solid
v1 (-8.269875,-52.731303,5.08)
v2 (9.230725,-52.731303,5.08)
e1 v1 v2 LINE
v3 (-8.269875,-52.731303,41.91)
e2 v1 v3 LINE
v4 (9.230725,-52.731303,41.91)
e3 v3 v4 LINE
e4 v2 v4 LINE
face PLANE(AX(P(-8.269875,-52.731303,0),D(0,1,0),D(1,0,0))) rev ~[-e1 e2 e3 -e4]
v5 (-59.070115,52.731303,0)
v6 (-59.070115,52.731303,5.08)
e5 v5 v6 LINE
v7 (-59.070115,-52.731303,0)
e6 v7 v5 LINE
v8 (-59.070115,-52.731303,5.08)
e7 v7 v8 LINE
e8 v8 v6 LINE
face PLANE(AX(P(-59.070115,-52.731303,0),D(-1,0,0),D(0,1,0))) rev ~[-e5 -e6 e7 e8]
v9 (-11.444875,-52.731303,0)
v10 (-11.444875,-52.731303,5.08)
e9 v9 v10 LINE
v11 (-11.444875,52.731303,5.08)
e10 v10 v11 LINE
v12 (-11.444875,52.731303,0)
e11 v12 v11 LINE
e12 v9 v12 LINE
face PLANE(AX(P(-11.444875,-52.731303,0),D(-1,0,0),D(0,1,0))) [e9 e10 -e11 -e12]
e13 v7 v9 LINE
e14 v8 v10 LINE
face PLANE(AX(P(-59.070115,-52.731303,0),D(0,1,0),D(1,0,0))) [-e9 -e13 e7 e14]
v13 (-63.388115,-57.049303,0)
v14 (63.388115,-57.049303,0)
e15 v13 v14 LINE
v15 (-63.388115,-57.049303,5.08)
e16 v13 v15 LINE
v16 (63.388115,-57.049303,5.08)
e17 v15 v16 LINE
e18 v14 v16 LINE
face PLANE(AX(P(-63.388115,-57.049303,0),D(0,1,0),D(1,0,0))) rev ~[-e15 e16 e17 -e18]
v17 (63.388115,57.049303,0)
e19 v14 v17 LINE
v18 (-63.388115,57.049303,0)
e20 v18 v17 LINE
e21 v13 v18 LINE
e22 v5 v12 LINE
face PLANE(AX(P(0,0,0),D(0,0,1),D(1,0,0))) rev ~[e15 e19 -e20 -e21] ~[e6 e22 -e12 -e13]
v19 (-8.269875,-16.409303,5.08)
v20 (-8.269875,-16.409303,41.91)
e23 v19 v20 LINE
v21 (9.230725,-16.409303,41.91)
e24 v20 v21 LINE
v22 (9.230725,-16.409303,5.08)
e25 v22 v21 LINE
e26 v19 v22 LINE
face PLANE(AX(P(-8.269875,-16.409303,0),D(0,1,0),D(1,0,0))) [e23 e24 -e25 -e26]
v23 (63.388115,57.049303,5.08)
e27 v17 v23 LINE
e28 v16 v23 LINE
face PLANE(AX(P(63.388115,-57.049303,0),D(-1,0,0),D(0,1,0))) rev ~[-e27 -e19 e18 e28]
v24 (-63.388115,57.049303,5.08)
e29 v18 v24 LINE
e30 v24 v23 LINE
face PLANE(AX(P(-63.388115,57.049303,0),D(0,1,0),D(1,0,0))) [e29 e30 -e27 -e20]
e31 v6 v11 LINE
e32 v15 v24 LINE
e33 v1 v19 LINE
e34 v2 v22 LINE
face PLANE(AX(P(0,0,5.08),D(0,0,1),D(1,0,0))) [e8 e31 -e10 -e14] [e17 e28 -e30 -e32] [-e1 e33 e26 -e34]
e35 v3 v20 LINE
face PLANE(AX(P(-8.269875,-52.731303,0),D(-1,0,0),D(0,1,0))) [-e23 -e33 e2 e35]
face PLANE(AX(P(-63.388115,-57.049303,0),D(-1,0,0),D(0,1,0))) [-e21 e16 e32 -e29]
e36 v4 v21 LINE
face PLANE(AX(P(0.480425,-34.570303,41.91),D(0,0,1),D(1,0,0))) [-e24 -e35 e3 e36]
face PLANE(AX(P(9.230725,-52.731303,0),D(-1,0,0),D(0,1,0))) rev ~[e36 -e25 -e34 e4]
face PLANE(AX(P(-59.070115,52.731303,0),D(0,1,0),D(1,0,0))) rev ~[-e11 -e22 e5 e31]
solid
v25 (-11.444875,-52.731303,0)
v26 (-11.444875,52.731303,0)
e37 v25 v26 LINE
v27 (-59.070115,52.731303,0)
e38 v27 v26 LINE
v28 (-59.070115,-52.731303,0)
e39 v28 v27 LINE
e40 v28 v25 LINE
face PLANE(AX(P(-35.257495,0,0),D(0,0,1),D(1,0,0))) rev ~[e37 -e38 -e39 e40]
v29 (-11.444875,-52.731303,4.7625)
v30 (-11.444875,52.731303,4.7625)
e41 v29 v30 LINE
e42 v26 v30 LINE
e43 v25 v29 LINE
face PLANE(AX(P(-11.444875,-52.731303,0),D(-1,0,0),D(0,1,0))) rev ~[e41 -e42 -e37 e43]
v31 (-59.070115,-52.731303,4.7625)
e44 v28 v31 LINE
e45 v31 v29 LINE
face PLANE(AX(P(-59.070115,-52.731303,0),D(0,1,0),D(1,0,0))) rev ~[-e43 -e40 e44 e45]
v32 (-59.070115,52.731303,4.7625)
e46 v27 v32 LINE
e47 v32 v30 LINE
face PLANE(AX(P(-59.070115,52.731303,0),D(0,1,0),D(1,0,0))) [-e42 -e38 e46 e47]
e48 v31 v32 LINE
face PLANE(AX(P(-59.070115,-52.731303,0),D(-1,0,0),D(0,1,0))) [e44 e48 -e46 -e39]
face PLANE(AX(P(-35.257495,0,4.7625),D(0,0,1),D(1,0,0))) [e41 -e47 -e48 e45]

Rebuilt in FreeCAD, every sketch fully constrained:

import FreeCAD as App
import Part
import Sketcher
from FreeCAD import Vector
Q = App.Units.Quantity

doc = App.newDocument("Part")
body = doc.addObject("PartDesign::Body", "Body")

# Sketch on XY plane
sketch1 = body.newObject("Sketcher::SketchObject", "Sketch")
sketch1.AttachmentSupport = (doc.getObject("XY_Plane"), [""])
sketch1.MapMode = "FlatFace"
sketch1.addGeometry([
    Part.LineSegment(Vector(-8, -16, 0), Vector(-8, -53, 0)),
    Part.LineSegment(Vector(-8, -53, 0), Vector(9, -53, 0)),
    Part.LineSegment(Vector(9, -53, 0), Vector(9, -16, 0)),
    Part.LineSegment(Vector(9, -16, 0), Vector(-8, -16, 0)),
], False)
sketch1.addConstraint([
    Sketcher.Constraint("Coincident", 0, 2, 1, 1),
    Sketcher.Constraint("Coincident", 1, 2, 2, 1),
    Sketcher.Constraint("Coincident", 2, 2, 3, 1),
    Sketcher.Constraint("Coincident", 3, 2, 0, 1),
    Sketcher.Constraint("Vertical", 0),
    Sketcher.Constraint("Horizontal", 1),
    Sketcher.Constraint("Vertical", 2),
    Sketcher.Constraint("Horizontal", 3),
    Sketcher.Constraint("DistanceY", 0, 2, 0, 1, Q("1.43 in")),
    Sketcher.Constraint("DistanceX", 1, 1, 1, 2, Q("0.689 in")),
    Sketcher.Constraint("DistanceX", 0, 2, -1, 1, Q("8.269875 mm")),
    Sketcher.Constraint("DistanceY", 0, 2, -1, 1, Q("52.731303 mm")),
])
pad1 = body.newObject("PartDesign::Pad", "Pad")
pad1.Profile = sketch1
pad1.Length = Q("1.65 in")

# Sketch on XY plane
sketch2 = body.newObject("Sketcher::SketchObject", "Sketch001")
sketch2.AttachmentSupport = (doc.getObject("XY_Plane"), [""])
sketch2.MapMode = "FlatFace"
sketch2.addGeometry([
    Part.LineSegment(Vector(-63, 57, 0), Vector(-63, -57, 0)),  # 0
    Part.LineSegment(Vector(-63, -57, 0), Vector(63, -57, 0)),  # 1
    Part.LineSegment(Vector(63, -57, 0), Vector(63, 57, 0)),  # 2
    Part.LineSegment(Vector(63, 57, 0), Vector(-63, 57, 0)),  # 3
    Part.LineSegment(Vector(9, -53, 0), Vector(-8, -53, 0)),  # 4
    Part.LineSegment(Vector(-8, -53, 0), Vector(-8, -16, 0)),  # 5
    Part.LineSegment(Vector(-8, -16, 0), Vector(9, -16, 0)),  # 6
    Part.LineSegment(Vector(9, -16, 0), Vector(9, -53, 0)),  # 7
    Part.LineSegment(Vector(-11, -53, 0), Vector(-59, -53, 0)),  # 8
    Part.LineSegment(Vector(-59, -53, 0), Vector(-59, 53, 0)),  # 9
    Part.LineSegment(Vector(-59, 53, 0), Vector(-11, 53, 0)),  # 10
    Part.LineSegment(Vector(-11, 53, 0), Vector(-11, -53, 0)),  # 11
], False)
sketch2.addConstraint([
    Sketcher.Constraint("Coincident", 0, 2, 1, 1),
    Sketcher.Constraint("Coincident", 1, 2, 2, 1),
    Sketcher.Constraint("Coincident", 2, 2, 3, 1),
    Sketcher.Constraint("Coincident", 3, 2, 0, 1),
    Sketcher.Constraint("Coincident", 4, 2, 5, 1),
    Sketcher.Constraint("Coincident", 5, 2, 6, 1),
    Sketcher.Constraint("Coincident", 6, 2, 7, 1),
    Sketcher.Constraint("Coincident", 7, 2, 4, 1),
    Sketcher.Constraint("Coincident", 8, 2, 9, 1),
    Sketcher.Constraint("Coincident", 9, 2, 10, 1),
    Sketcher.Constraint("Coincident", 10, 2, 11, 1),
    Sketcher.Constraint("Coincident", 11, 2, 8, 1),
    Sketcher.Constraint("Vertical", 0),
    Sketcher.Constraint("Horizontal", 1),
    Sketcher.Constraint("Vertical", 2),
    Sketcher.Constraint("Horizontal", 3),
    Sketcher.Constraint("Horizontal", 4),
    Sketcher.Constraint("Vertical", 5),
    Sketcher.Constraint("Horizontal", 6),
    Sketcher.Constraint("Vertical", 7),
    Sketcher.Constraint("Horizontal", 8),
    Sketcher.Constraint("Vertical", 9),
    Sketcher.Constraint("Horizontal", 10),
    Sketcher.Constraint("Vertical", 11),
    Sketcher.Constraint("Symmetric", 0, 2, 2, 2, -1, 1),
    Sketcher.Constraint("Horizontal", 7, 2, 8, 2),
    Sketcher.Constraint("DistanceY", 5, 1, 5, 2, Q("1.43 in")),
    Sketcher.Constraint("DistanceY", 0, 2, 5, 2, Q("1.6 in")),
    Sketcher.Constraint("DistanceX", 4, 2, 4, 1, Q("0.689 in")),
    Sketcher.Constraint("DistanceX", 0, 2, 8, 2, Q("0.17 in")),
    Sketcher.Constraint("DistanceY", 9, 2, 3, 2, Q("0.17 in")),
    Sketcher.Constraint("DistanceX", 10, 2, 5, 2, Q("0.125 in")),
    Sketcher.Constraint("DistanceX", 1, 1, 1, 2, Q("126.77623 mm")),
    Sketcher.Constraint("DistanceX", 8, 2, 8, 1, Q("47.62524 mm")),
    Sketcher.Constraint("DistanceY", 0, 2, 0, 1, Q("114.098606 mm")),
])
pad2 = body.newObject("PartDesign::Pad", "Pad001")
pad2.Profile = sketch2
pad2.Length = Q("0.2 in")

# Sketch on XY plane
sketch3 = body.newObject("Sketcher::SketchObject", "Sketch002")
sketch3.AttachmentSupport = (doc.getObject("XY_Plane"), [""])
sketch3.MapMode = "FlatFace"
sketch3.addGeometry([
    Part.LineSegment(Vector(-56, 50, 0), Vector(-56, -50, 0)),
    Part.LineSegment(Vector(-56, -50, 0), Vector(-15, -50, 0)),
    Part.LineSegment(Vector(-15, -50, 0), Vector(-15, 50, 0)),
    Part.LineSegment(Vector(-15, 50, 0), Vector(-56, 50, 0)),
], False)
sketch3.addConstraint([
    Sketcher.Constraint("Coincident", 0, 2, 1, 1),
    Sketcher.Constraint("Coincident", 1, 2, 2, 1),
    Sketcher.Constraint("Coincident", 2, 2, 3, 1),
    Sketcher.Constraint("Coincident", 3, 2, 0, 1),
    Sketcher.Constraint("Vertical", 0),
    Sketcher.Constraint("Horizontal", 1),
    Sketcher.Constraint("Vertical", 2),
    Sketcher.Constraint("Horizontal", 3),
    Sketcher.Constraint("DistanceX", 1, 1, 1, 2, Q("41.27524 mm")),
    Sketcher.Constraint("DistanceY", 0, 2, 0, 1, Q("99.112606 mm")),
    Sketcher.Constraint("DistanceX", 0, 2, -1, 1, Q("55.895115 mm")),
    Sketcher.Constraint("DistanceY", 0, 2, -1, 1, Q("49.556303 mm")),
])
pocket1 = body.newObject("PartDesign::Pocket", "Pocket")
pocket1.Profile = sketch3
pocket1.Type = "ThroughAll"
pocket1.Reversed = True
body2 = doc.addObject("PartDesign::Body", "Body001")

# Sketch on XY plane
sketch4 = body2.newObject("Sketcher::SketchObject", "Sketch003")
sketch4.AttachmentSupport = (doc.getObject("XY_Plane001"), [""])
sketch4.MapMode = "FlatFace"
sketch4.addGeometry([
    Part.LineSegment(Vector(-59, 53, 0), Vector(-59, -53, 0)),
    Part.LineSegment(Vector(-59, -53, 0), Vector(-11, -53, 0)),
    Part.LineSegment(Vector(-11, -53, 0), Vector(-11, 53, 0)),
    Part.LineSegment(Vector(-11, 53, 0), Vector(-59, 53, 0)),
], False)
sketch4.addConstraint([
    Sketcher.Constraint("Coincident", 0, 2, 1, 1),
    Sketcher.Constraint("Coincident", 1, 2, 2, 1),
    Sketcher.Constraint("Coincident", 2, 2, 3, 1),
    Sketcher.Constraint("Coincident", 3, 2, 0, 1),
    Sketcher.Constraint("Vertical", 0),
    Sketcher.Constraint("Horizontal", 1),
    Sketcher.Constraint("Vertical", 2),
    Sketcher.Constraint("Horizontal", 3),
    Sketcher.Constraint("DistanceX", 1, 1, 1, 2, Q("47.62524 mm")),
    Sketcher.Constraint("DistanceY", 0, 2, 0, 1, Q("105.462606 mm")),
    Sketcher.Constraint("DistanceX", 0, 2, -1, 1, Q("59.070115 mm")),
    Sketcher.Constraint("DistanceY", 0, 2, -1, 1, Q("52.731303 mm")),
])
pad3 = body2.newObject("PartDesign::Pad", "Pad002")
pad3.Profile = sketch4
pad3.Length = Q("0.1875 in")

doc.recompute()
